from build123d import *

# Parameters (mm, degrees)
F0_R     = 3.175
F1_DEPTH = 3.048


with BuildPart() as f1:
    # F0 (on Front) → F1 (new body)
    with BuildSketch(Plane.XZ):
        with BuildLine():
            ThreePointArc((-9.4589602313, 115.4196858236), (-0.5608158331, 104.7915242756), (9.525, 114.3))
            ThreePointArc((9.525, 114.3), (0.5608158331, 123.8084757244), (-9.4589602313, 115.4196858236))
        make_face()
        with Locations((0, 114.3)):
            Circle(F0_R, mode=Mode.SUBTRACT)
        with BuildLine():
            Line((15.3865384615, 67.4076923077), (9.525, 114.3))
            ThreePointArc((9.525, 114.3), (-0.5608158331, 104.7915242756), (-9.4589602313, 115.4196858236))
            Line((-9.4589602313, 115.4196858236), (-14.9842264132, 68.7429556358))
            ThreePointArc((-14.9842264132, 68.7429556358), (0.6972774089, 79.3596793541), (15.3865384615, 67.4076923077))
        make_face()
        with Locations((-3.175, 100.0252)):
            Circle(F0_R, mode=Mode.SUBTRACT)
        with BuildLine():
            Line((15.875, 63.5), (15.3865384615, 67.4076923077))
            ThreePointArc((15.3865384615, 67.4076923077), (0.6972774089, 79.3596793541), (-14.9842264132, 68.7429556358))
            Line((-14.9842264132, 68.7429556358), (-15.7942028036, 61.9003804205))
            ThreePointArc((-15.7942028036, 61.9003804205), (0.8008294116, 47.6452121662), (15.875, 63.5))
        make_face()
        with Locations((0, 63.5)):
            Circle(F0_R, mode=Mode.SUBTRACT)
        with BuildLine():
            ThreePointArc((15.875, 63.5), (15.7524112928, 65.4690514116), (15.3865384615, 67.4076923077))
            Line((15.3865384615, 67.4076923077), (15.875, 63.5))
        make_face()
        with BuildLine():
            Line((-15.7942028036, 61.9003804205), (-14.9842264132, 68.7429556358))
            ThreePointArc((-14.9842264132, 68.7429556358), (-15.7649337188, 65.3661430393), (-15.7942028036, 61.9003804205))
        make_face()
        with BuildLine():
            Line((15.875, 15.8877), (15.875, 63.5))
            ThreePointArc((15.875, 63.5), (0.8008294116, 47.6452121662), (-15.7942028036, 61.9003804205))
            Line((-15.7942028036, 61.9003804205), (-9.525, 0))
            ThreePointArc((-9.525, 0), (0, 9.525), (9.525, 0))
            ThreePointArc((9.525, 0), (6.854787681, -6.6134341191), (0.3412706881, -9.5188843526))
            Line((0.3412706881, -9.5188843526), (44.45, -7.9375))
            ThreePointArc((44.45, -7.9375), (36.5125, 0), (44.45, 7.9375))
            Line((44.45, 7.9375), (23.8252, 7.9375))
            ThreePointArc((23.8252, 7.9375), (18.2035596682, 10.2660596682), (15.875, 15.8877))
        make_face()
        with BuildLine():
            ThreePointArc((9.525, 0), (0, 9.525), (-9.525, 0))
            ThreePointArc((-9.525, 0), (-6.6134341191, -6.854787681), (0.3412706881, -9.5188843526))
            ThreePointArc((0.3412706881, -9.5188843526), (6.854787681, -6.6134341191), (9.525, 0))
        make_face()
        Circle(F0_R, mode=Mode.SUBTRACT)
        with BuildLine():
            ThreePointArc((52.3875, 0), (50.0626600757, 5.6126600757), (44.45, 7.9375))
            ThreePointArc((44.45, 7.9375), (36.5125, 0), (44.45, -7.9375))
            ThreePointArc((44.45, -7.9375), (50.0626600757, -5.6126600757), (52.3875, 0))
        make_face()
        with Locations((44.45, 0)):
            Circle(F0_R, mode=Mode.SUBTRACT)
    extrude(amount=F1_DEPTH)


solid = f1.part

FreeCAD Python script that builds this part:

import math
import FreeCAD as App
import Part
import Sketcher
Q = App.Units.Quantity

doc = App.newDocument("Part")
body = doc.addObject("PartDesign::Body", "Body")

sketch1 = body.newObject("Sketcher::SketchObject", "Sketch")
sketch1.AttachmentSupport = (doc.getObject("XZ_Plane"), [""])
sketch1.MapMode = "FlatFace"
sketch1.addGeometry([
    Part.ArcOfCircle(Part.Circle(App.Vector(0, 114.3, 0), App.Vector(0, 0, 1), 9.525), math.radians(0), math.radians(173.249139)),
    Part.LineSegment(App.Vector(-9.45896, 115.419686, 0), App.Vector(-14.984226, 68.742956, 0)),
    Part.ArcOfCircle(Part.Circle(App.Vector(0, 63.5, 0), App.Vector(0, 0, 1), 15.875), math.radians(160.715144), math.radians(185.783134)),
    Part.LineSegment(App.Vector(-15.794203, 61.90038, 0), App.Vector(-9.525, 0, 0)),
    Part.ArcOfCircle(Part.Circle(App.Vector(0, 0, 0), App.Vector(0, 0, 1), 9.525), math.radians(180), math.radians(272.053287)),
    Part.LineSegment(App.Vector(0.341271, -9.518884, 0), App.Vector(44.45, -7.9375, 0)),
    Part.ArcOfCircle(Part.Circle(App.Vector(44.45, 0, 0), App.Vector(0, 0, 1), 7.9375), math.radians(-90), math.radians(0)),
    Part.ArcOfCircle(Part.Circle(App.Vector(44.45, 0, 0), App.Vector(0, 0, 1), 7.9375), math.radians(0), math.radians(90)),
    Part.LineSegment(App.Vector(44.45, 7.9375, 0), App.Vector(23.8252, 7.9375, 0)),
    Part.ArcOfCircle(Part.Circle(App.Vector(23.8252, 15.8877, 0), App.Vector(0, 0, 1), 7.9502), math.radians(180), math.radians(270)),
    Part.LineSegment(App.Vector(15.875, 15.8877, 0), App.Vector(15.875, 63.5, 0)),
    Part.ArcOfCircle(Part.Circle(App.Vector(0, 63.5, 0), App.Vector(0, 0, 1), 15.875), math.radians(0), math.radians(14.250033)),
    Part.LineSegment(App.Vector(15.386538, 67.407692, 0), App.Vector(9.525, 114.3, 0)),
    Part.Circle(App.Vector(0, 0, 0), App.Vector(0, 0, 1), 3.175),
    Part.Circle(App.Vector(44.45, 0, 0), App.Vector(0, 0, 1), 3.175),
    Part.Circle(App.Vector(0, 63.5, 0), App.Vector(0, 0, 1), 3.175),
    Part.Circle(App.Vector(-3.175, 100.0252, 0), App.Vector(0, 0, 1), 3.175),
    Part.Circle(App.Vector(0, 114.3, 0), App.Vector(0, 0, 1), 3.175),
], False)
sketch1.addConstraint([
    Sketcher.Constraint("Coincident", 0, 2, 1, 1),
    Sketcher.Constraint("Coincident", 1, 2, 2, 1),
    Sketcher.Constraint("Coincident", 2, 2, 3, 1),
    Sketcher.Constraint("Coincident", 3, 2, 4, 1),
    Sketcher.Constraint("Coincident", 4, 2, 5, 1),
    Sketcher.Constraint("Coincident", 5, 2, 6, 1),
    Sketcher.Constraint("Coincident", 6, 2, 7, 1),
    Sketcher.Constraint("Coincident", 7, 2, 8, 1),
    Sketcher.Constraint("Coincident", 8, 2, 9, 2),
    Sketcher.Constraint("Coincident", 9, 1, 10, 1),
    Sketcher.Constraint("Coincident", 10, 2, 11, 1),
    Sketcher.Constraint("Coincident", 11, 2, 12, 1),
    Sketcher.Constraint("Coincident", 12, 2, 0, 1),
    Sketcher.Constraint("Horizontal", 8),
    Sketcher.Constraint("Vertical", 10),
    Sketcher.Constraint("Coincident", 4, 3, -1, 1),
    Sketcher.Constraint("Coincident", 13, 3, -1, 1),
    Sketcher.Constraint("Coincident", 7, 3, 6, 3),
    Sketcher.Constraint("Coincident", 11, 3, 2, 3),
    Sketcher.Constraint("Coincident", 14, 3, 6, 3),
    Sketcher.Constraint("Coincident", 15, 3, 2, 3),
    Sketcher.Constraint("Coincident", 17, 3, 0, 3),
    Sketcher.Constraint("PointOnObject", 0, 3, -2),
    Sketcher.Constraint("PointOnObject", 2, 3, -2),
    Sketcher.Constraint("PointOnObject", 6, 3, -1),
    Sketcher.Constraint("PointOnObject", 3, 2, -1),
    Sketcher.Constraint("PointOnObject", 6, 2, -1),
    Sketcher.Constraint("Diameter", 13, Q("0.25 in")),
    Sketcher.Constraint("Diameter", 14, Q("0.25 in")),
    Sketcher.Constraint("Diameter", 15, Q("0.25 in")),
    Sketcher.Constraint("Diameter", 16, Q("0.25 in")),
    Sketcher.Constraint("Diameter", 17, Q("0.25 in")),
    Sketcher.Constraint("Radius", 0, Q("0.375 in")),
    Sketcher.Constraint("Radius", 2, Q("0.625 in")),
    Sketcher.Constraint("Radius", 4, Q("0.375 in")),
    Sketcher.Constraint("Radius", 6, Q("0.3125 in")),
    Sketcher.Constraint("Radius", 9, Q("0.313 in")),
    Sketcher.Constraint("Radius", 11, Q("0.625 in")),
    Sketcher.Constraint("DistanceY", 2, 3, 0, 3, Q("2 in")),
    Sketcher.Constraint("DistanceY", -1, 1, 0, 3, Q("4.5 in")),
    Sketcher.Constraint("DistanceY", -1, 1, 10, 2, Q("2.5 in")),
    Sketcher.Constraint("DistanceY", -1, 1, 12, 2, Q("4.5 in")),
    Sketcher.Constraint("DistanceX", 16, 3, 12, 2, Q("0.5 in")),
    Sketcher.Constraint("DistanceX", 8, 2, 8, 1, Q("0.812 in")),
    Sketcher.Constraint("DistanceX", -1, 1, 6, 3, Q("1.75 in")),
    Sketcher.Constraint("DistanceX", -1, 1, 5, 2, Q("1.75 in")),
    Sketcher.Constraint("DistanceX", -1, 1, 7, 2, Q("1.75 in")),
    Sketcher.Constraint("DistanceY", 10, 1, 10, 2, Q("1.8745 in")),
    Sketcher.Constraint("DistanceY", -1, 1, 16, 3, Q("3.938 in")),
    Sketcher.Constraint("DistanceX", 0, 2, -1, 1, Q("0.3724 in")),
    Sketcher.Constraint("Distance", 3, Q("62.217039 mm")),
    Sketcher.Constraint("Distance", 5, Q("44.137068 mm")),
    Sketcher.Constraint("DistanceX", -1, 1, 11, 2, Q("15.386538 mm")),
    Sketcher.Constraint("DistanceY", 1, 2, 0, 2, Q("46.67673 mm")),
])
pad1 = body.newObject("PartDesign::Pad", "Pad")
pad1.Profile = sketch1
pad1.Length = Q("0.12 in")

doc.recompute()
